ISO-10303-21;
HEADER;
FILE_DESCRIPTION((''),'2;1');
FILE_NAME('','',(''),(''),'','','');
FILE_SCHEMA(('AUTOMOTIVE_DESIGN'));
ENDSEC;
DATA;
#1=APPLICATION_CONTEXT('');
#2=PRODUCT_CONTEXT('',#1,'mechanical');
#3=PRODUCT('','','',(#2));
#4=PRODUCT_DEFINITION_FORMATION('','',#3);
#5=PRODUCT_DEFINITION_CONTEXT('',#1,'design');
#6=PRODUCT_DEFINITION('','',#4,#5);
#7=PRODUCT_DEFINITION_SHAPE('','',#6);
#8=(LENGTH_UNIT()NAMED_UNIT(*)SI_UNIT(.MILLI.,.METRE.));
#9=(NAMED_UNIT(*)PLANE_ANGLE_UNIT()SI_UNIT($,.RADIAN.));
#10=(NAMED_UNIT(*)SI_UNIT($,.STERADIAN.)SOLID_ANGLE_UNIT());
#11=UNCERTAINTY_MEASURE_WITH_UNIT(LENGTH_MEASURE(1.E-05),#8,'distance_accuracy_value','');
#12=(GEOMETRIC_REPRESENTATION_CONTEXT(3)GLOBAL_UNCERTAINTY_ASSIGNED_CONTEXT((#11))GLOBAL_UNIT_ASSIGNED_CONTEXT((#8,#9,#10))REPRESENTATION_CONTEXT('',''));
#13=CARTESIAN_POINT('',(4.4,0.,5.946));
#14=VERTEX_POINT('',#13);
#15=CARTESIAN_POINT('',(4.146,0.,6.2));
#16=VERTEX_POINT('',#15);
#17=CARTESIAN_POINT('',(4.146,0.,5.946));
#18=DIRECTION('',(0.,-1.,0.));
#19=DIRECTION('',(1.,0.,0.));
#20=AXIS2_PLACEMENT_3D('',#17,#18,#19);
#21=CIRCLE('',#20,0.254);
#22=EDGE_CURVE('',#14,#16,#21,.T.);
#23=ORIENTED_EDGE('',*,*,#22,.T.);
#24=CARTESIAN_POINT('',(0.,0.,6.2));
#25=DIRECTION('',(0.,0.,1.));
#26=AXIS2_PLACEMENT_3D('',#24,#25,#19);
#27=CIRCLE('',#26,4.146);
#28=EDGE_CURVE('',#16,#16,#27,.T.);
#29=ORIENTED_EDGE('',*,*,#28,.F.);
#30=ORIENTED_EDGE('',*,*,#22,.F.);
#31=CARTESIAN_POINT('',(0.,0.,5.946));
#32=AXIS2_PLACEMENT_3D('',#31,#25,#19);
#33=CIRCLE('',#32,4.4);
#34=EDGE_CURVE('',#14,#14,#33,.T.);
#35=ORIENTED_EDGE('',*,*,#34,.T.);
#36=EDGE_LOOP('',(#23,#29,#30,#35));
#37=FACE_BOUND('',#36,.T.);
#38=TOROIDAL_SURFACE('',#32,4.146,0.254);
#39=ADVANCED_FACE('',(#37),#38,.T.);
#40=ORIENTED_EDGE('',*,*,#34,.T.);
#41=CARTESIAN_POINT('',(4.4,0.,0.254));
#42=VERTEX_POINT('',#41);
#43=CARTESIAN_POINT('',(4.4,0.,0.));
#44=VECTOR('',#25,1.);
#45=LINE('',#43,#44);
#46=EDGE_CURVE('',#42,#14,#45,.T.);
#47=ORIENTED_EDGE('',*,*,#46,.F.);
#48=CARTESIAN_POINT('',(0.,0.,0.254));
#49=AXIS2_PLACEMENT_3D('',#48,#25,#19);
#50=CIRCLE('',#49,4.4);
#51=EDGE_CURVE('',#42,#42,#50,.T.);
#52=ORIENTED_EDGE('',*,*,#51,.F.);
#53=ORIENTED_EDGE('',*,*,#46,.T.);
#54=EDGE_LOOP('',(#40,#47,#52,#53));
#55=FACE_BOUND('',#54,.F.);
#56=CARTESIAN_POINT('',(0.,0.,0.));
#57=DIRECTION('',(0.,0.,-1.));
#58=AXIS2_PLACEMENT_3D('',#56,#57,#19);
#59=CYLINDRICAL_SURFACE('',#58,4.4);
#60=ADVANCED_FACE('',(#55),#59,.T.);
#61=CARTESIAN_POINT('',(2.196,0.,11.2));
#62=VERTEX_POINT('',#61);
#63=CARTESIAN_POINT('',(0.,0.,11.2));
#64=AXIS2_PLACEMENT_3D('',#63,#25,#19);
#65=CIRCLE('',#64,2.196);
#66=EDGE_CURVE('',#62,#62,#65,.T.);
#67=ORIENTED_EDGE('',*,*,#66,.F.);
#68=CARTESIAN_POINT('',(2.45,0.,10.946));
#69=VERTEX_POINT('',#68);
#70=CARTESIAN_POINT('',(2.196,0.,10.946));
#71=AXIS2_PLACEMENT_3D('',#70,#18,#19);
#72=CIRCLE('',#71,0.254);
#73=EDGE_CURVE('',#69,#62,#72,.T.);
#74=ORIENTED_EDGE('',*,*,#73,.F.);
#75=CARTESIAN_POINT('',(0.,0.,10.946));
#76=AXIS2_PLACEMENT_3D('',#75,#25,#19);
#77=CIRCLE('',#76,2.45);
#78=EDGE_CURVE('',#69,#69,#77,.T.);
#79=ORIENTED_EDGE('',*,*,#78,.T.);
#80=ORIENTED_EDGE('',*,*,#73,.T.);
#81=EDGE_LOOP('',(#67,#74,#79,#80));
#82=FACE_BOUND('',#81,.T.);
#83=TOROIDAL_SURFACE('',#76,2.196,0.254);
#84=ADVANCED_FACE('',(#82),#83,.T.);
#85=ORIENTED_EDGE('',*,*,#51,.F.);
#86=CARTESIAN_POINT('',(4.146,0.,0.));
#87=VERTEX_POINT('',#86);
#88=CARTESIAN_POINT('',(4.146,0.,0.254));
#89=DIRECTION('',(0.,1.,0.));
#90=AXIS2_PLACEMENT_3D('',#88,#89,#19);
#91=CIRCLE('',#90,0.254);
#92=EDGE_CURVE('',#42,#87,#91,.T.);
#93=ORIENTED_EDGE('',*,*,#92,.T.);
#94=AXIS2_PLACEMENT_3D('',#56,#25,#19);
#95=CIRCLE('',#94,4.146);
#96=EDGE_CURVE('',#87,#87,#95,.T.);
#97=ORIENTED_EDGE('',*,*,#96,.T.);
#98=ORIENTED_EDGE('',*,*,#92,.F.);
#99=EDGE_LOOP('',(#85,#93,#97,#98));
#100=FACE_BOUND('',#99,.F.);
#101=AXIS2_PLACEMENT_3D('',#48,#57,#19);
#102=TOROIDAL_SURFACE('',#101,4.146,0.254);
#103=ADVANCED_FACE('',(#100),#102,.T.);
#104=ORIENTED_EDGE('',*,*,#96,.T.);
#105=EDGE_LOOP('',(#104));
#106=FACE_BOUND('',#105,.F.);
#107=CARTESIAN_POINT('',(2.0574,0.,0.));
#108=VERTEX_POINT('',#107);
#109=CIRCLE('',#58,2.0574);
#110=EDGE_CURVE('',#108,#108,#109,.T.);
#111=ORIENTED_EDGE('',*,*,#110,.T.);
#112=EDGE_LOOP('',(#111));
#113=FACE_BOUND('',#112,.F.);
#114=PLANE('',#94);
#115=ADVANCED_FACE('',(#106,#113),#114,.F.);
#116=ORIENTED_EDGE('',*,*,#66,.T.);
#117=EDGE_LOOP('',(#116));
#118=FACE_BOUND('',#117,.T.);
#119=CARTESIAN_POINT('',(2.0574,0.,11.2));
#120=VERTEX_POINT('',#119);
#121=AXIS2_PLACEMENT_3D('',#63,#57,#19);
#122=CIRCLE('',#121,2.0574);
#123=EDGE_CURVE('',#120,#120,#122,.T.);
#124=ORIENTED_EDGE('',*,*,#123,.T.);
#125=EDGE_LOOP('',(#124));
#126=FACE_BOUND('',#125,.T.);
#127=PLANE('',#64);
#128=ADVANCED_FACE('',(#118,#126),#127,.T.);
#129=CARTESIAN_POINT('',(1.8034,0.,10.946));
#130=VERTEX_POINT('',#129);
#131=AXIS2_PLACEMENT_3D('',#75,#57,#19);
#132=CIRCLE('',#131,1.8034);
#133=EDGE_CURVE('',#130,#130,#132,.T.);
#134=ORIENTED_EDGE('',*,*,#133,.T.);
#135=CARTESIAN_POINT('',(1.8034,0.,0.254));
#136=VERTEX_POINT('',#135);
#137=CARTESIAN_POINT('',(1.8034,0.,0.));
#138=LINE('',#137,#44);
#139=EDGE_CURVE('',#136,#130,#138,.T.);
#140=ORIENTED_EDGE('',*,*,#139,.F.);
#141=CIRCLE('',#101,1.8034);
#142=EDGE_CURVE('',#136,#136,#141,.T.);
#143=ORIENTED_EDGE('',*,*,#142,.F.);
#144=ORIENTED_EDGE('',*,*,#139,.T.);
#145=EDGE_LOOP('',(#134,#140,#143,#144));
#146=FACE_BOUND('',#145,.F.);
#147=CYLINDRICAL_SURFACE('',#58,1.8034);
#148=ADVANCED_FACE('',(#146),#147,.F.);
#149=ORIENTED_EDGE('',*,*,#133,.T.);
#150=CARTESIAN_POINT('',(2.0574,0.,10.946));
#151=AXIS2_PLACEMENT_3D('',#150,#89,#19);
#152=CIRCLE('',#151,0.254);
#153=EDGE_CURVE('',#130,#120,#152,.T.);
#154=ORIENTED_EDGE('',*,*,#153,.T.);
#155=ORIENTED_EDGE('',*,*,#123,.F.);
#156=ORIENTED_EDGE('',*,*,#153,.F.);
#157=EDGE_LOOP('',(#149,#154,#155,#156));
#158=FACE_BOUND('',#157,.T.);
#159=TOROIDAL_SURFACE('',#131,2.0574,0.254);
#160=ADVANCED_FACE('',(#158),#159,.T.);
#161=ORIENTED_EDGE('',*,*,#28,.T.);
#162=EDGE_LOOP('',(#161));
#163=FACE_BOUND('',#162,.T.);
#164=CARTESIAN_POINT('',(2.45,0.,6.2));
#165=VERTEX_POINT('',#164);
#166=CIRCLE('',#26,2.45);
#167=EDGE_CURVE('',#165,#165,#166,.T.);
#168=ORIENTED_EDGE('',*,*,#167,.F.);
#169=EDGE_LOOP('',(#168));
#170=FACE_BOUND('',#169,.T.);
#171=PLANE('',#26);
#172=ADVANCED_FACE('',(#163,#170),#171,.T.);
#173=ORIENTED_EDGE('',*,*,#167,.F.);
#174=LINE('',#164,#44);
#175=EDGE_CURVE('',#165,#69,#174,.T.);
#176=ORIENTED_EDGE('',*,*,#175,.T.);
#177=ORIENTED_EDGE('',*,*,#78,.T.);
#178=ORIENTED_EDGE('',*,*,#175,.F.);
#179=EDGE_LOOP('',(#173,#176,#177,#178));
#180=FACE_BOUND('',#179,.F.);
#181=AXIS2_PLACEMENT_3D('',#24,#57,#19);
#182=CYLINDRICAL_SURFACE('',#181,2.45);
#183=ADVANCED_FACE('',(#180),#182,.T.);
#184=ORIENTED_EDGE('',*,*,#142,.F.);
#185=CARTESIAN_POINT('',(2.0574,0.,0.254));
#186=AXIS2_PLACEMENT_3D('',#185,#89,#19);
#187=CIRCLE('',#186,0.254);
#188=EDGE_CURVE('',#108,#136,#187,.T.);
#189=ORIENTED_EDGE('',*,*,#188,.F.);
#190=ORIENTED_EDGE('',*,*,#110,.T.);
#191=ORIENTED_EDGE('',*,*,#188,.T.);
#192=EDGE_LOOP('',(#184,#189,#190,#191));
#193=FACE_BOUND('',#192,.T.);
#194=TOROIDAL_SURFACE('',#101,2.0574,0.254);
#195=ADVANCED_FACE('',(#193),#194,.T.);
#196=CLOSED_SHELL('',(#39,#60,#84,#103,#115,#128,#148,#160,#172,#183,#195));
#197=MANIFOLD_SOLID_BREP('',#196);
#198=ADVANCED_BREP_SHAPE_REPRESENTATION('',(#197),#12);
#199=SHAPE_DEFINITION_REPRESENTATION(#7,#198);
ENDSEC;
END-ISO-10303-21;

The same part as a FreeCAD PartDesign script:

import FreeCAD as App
import Part
import Sketcher
from FreeCAD import Vector


def edges_at(feature, points):
    """Names of the edges that pass closest to the given points."""
    edges = feature.Shape.Edges
    near = lambda p: min(range(len(edges)), key=lambda i: edges[i].distToShape(Part.Vertex(*p))[0])
    return sorted({f"Edge{near(p) + 1}" for p in points})

doc = App.newDocument("Part")
body = doc.addObject("PartDesign::Body", "Body")

sketch1 = doc.addObject("Sketcher::SketchObject", "Sketch")
body.addObject(sketch1)
sketch1.AttachmentSupport = (doc.XY_Plane, [""])
sketch1.MapMode = "FlatFace"
sketch1.addGeometry(Part.Circle(Vector(0, 0, 0), Vector(0, 0, 1), 4.4), False)
sketch1.addConstraint([
    Sketcher.Constraint("Coincident", 0, 3, -1, 1),
    Sketcher.Constraint("Diameter", 0, 8.8),
])
pad1 = doc.addObject("PartDesign::Pad", "Pad")
body.addObject(pad1)
pad1.Profile = sketch1
pad1.Length = 6.2

sketch2 = doc.addObject("Sketcher::SketchObject", "Sketch001")
body.addObject(sketch2)
sketch2.AttachmentSupport = (doc.XY_Plane, [""])
sketch2.MapMode = "FlatFace"
sketch2.AttachmentOffset = App.Placement(Vector(0, 0, 6.2), App.Rotation())
sketch2.addGeometry(Part.Circle(Vector(0, 0, 0), Vector(0, 0, 1), 2.5), False)
sketch2.addConstraint([
    Sketcher.Constraint("Coincident", 0, 3, -1, 1),
    Sketcher.Constraint("Diameter", 0, 4.9),
])
pad2 = doc.addObject("PartDesign::Pad", "Pad001")
body.addObject(pad2)
pad2.Profile = sketch2
pad2.Length = 5

sketch3 = doc.addObject("Sketcher::SketchObject", "Sketch002")
body.addObject(sketch3)
sketch3.AttachmentSupport = (doc.XY_Plane, [""])
sketch3.MapMode = "FlatFace"
sketch3.addGeometry(Part.Circle(Vector(0, 0, 0), Vector(0, 0, 1), 1.8), False)
sketch3.addConstraint([
    Sketcher.Constraint("Coincident", 0, 3, -1, 1),
    Sketcher.Constraint("Diameter", 0, 3.6068),
])
pocket1 = doc.addObject("PartDesign::Pocket", "Pocket")
body.addObject(pocket1)
pocket1.Profile = sketch3
pocket1.Type = "ThroughAll"
pocket1.Reversed = True
doc.recompute()

fillet = doc.addObject("PartDesign::Fillet", "Fillet")
body.addObject(fillet)
fillet.Base = (pocket1, edges_at(pocket1, [
    (-2.45, 0, 11.2),
    (-1.803, 0, 11.2),
    (-4.4, 0, 0),
    (-1.803, 0, 0),
    (-4.4, 0, 6.2),
]))
fillet.Radius = 0.254

doc.recompute()
